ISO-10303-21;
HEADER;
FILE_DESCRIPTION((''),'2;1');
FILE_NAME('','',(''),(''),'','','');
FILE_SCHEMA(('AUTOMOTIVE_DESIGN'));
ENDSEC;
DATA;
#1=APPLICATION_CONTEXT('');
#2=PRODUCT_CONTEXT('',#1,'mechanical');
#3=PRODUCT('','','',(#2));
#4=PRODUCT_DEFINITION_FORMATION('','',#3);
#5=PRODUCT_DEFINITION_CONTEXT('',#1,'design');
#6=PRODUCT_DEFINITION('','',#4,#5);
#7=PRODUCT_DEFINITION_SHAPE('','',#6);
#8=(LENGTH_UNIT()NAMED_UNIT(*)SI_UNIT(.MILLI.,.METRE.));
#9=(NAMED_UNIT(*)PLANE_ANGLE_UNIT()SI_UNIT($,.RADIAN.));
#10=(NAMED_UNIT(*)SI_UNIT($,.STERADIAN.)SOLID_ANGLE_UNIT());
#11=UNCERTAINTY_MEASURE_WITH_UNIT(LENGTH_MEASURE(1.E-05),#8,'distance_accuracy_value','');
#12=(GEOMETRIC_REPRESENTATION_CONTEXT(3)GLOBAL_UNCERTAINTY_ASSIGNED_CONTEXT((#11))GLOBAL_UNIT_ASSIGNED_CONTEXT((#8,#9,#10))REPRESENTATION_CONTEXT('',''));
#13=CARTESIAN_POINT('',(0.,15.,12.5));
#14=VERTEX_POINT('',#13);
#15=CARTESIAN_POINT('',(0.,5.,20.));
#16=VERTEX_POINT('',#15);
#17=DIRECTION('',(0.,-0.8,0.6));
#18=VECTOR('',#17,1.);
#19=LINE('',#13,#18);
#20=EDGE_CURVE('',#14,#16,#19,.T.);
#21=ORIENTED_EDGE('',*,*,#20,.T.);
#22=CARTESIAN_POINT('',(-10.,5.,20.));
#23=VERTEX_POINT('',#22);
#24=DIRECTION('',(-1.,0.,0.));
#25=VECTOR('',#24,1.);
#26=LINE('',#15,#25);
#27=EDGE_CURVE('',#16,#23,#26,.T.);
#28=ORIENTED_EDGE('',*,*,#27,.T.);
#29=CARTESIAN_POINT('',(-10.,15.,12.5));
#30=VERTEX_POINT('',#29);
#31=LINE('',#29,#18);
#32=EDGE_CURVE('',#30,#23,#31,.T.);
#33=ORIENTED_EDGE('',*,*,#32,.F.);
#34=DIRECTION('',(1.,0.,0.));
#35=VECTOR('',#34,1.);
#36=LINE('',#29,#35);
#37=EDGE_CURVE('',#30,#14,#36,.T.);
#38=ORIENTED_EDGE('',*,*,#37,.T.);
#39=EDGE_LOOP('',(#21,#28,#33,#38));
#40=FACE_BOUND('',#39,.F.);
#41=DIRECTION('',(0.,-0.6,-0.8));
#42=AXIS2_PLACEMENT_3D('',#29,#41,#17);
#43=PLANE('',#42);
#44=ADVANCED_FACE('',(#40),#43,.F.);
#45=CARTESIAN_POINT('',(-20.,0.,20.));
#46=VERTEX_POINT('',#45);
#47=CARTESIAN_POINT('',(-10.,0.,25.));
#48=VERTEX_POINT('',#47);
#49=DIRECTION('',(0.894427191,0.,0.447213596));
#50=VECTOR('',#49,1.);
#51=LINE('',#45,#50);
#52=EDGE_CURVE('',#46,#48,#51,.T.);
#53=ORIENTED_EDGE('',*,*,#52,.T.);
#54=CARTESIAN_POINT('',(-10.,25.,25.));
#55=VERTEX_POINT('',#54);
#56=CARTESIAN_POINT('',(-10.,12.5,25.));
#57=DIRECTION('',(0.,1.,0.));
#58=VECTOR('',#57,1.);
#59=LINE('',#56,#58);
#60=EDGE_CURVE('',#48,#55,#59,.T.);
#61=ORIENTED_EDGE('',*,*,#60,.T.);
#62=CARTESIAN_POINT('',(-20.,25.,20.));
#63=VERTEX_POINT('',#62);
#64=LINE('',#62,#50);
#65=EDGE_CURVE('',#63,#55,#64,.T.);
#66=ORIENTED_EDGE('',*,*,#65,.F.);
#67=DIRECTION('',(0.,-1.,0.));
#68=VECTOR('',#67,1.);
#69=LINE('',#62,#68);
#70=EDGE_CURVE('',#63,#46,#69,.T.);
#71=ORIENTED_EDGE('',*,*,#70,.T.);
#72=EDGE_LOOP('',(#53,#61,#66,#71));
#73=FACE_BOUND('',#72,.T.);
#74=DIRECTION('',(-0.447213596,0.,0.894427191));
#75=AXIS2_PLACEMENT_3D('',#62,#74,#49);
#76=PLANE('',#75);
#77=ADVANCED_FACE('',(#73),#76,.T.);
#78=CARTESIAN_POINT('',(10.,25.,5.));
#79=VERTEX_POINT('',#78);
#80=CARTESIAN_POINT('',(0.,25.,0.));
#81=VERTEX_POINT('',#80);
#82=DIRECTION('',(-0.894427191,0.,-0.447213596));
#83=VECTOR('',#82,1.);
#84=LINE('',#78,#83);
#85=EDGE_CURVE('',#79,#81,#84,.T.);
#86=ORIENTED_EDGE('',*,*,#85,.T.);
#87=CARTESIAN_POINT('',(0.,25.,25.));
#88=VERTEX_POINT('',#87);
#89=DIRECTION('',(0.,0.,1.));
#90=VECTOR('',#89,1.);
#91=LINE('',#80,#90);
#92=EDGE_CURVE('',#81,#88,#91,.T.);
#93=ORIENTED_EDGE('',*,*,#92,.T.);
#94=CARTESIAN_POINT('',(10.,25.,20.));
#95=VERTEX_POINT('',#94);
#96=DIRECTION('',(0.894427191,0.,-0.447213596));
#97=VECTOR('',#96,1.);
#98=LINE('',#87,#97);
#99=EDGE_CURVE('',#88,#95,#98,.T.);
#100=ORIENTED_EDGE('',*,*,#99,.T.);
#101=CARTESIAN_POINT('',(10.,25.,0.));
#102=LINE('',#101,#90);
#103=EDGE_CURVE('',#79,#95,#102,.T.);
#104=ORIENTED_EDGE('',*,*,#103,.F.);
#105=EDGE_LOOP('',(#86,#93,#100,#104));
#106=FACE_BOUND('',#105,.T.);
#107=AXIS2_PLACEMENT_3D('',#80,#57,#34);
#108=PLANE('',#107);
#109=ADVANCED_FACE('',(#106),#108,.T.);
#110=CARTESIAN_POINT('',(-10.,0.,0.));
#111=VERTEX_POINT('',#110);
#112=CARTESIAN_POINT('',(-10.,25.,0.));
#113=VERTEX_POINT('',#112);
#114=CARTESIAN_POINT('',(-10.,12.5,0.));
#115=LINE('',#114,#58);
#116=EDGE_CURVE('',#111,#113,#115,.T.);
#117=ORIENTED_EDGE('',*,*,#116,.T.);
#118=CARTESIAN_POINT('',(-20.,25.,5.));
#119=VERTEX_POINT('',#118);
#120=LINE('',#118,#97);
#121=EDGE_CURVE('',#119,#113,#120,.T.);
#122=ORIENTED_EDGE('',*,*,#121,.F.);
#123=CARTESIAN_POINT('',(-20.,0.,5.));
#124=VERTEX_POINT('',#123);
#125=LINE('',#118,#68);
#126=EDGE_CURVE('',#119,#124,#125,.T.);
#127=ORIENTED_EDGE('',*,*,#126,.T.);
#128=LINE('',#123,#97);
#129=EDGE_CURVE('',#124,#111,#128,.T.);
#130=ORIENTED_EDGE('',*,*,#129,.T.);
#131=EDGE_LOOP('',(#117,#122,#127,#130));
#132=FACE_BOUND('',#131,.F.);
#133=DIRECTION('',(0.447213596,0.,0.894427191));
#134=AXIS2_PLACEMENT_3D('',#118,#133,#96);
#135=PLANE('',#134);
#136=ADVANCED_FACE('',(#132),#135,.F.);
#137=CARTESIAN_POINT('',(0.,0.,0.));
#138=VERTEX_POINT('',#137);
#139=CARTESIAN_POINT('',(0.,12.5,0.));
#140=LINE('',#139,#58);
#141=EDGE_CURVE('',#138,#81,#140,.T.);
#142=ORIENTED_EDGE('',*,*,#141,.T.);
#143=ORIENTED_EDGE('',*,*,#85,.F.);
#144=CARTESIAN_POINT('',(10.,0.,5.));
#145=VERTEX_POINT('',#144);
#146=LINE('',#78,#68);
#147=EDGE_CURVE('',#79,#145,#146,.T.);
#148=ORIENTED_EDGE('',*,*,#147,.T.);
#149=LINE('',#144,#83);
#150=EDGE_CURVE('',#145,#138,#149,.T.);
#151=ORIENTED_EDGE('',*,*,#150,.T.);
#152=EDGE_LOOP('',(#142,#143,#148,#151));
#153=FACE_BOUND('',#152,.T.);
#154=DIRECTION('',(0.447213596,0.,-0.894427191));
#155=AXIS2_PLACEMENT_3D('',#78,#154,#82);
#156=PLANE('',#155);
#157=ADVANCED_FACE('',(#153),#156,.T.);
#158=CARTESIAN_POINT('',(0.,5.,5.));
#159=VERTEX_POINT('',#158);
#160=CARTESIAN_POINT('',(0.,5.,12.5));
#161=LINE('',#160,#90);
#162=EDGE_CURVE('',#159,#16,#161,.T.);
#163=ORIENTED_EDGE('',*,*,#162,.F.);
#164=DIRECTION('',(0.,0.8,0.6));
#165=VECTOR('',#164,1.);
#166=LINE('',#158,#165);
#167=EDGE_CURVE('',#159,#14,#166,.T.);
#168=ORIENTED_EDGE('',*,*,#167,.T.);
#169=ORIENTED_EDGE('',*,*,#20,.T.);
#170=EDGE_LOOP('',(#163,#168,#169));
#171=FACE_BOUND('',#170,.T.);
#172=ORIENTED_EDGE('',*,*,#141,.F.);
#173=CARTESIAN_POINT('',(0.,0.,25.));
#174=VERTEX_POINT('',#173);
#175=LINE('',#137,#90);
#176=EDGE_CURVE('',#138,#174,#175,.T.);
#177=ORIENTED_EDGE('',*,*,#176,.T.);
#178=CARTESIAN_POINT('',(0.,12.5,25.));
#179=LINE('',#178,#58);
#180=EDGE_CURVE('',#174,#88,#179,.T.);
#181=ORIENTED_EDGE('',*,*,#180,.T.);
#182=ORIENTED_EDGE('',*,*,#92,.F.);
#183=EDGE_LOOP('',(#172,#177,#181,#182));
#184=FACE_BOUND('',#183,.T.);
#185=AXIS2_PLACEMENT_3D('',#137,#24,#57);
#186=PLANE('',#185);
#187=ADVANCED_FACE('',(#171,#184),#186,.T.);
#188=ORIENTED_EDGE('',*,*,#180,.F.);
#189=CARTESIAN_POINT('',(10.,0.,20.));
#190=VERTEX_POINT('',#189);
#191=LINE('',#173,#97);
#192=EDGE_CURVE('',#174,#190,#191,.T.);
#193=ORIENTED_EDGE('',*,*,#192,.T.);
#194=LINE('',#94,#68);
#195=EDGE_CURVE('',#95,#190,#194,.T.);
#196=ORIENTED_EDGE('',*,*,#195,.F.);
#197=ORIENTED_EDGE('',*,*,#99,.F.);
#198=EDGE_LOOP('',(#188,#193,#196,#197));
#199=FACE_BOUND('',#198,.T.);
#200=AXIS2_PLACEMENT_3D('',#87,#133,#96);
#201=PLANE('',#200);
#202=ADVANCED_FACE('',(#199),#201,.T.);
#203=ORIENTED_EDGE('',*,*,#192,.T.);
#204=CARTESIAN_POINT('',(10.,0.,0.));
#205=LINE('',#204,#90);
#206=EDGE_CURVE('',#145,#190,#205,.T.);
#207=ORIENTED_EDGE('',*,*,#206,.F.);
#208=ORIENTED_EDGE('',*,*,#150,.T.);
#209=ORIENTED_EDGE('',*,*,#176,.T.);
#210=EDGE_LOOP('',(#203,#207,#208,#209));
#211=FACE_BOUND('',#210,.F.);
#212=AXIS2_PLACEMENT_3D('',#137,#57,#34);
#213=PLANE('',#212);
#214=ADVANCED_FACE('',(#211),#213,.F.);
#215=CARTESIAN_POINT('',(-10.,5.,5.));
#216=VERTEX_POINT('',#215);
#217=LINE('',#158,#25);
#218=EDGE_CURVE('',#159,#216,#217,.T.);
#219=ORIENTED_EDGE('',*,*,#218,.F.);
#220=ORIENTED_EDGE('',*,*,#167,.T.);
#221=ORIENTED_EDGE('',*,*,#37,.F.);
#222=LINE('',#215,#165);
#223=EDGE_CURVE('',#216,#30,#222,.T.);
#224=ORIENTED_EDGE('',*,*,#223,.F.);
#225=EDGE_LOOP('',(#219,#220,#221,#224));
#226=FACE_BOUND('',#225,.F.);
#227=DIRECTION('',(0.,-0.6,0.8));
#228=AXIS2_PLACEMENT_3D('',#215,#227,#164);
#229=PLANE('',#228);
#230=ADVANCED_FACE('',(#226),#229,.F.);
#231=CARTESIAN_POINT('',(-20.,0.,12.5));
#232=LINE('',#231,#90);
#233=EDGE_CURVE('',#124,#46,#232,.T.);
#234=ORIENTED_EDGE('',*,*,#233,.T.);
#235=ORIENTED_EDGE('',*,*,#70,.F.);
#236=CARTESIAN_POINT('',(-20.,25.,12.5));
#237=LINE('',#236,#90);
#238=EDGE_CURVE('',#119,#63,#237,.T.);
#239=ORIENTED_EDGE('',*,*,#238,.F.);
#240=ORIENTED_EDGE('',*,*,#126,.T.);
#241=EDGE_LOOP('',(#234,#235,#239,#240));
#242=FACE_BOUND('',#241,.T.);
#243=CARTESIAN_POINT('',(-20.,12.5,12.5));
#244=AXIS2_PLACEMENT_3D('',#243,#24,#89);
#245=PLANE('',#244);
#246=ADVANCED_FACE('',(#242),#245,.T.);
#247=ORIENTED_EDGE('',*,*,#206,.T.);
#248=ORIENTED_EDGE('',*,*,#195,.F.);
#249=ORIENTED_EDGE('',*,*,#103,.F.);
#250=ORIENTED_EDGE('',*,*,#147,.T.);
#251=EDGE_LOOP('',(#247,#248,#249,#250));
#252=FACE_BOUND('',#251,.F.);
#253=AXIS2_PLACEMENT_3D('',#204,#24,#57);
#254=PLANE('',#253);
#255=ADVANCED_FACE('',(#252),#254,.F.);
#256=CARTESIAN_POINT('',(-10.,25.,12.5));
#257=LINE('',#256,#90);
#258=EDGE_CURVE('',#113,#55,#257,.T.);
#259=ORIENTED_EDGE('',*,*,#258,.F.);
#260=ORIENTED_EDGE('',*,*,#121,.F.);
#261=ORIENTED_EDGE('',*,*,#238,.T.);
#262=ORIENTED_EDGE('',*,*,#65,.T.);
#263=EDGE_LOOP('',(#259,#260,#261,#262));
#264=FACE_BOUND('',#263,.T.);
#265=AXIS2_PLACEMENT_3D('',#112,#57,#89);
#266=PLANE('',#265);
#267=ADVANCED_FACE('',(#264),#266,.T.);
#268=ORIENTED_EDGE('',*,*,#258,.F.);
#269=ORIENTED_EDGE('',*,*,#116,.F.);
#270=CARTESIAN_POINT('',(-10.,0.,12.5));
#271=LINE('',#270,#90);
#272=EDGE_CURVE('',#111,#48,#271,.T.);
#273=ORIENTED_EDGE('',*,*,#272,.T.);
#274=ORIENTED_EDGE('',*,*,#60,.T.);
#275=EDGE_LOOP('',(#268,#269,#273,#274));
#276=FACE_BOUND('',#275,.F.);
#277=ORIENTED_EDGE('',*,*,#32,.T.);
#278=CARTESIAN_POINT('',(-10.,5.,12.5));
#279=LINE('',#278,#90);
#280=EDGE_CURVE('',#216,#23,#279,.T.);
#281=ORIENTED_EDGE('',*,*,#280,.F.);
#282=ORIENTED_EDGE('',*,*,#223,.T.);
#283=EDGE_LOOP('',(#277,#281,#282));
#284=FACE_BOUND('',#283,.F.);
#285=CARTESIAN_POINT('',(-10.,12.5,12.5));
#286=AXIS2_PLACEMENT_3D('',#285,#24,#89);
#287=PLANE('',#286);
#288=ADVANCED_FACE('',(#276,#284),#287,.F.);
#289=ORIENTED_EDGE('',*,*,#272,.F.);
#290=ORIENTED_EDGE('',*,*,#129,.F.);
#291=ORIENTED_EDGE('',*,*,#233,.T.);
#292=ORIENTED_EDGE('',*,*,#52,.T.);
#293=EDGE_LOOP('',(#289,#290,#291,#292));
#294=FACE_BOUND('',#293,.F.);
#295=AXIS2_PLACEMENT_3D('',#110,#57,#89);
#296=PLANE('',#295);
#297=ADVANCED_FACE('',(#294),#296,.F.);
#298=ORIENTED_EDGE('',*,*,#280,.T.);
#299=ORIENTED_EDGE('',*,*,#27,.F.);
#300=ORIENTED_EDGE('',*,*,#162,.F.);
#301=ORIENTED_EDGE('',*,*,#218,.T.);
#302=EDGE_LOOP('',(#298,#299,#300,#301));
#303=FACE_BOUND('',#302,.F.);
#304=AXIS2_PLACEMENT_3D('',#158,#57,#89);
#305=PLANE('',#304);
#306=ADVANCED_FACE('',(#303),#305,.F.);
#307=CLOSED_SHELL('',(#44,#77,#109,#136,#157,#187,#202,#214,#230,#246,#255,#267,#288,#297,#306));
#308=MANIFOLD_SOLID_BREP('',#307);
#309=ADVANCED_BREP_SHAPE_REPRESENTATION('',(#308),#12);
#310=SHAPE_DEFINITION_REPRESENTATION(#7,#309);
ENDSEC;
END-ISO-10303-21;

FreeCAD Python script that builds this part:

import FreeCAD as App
import Part
import Sketcher


def add_polygon(sketch, points):
    """Adds a closed chain of lines whose ends are joined by coincident constraints."""
    first, n = sketch.GeometryCount, len(points)
    for a, b in zip(points, points[1:] + points[:1]):
        sketch.addGeometry(Part.LineSegment(App.Vector(*a, 0), App.Vector(*b, 0)), False)
    for i in range(n):
        sketch.addConstraint(Sketcher.Constraint("Coincident", first + i, 2, first + (i + 1) % n, 1))

doc = App.newDocument("Part")
body = doc.addObject("PartDesign::Body", "Body")

# Sketch on XY plane
sketch1 = body.newObject("Sketcher::SketchObject", "Sketch")
sketch1.AttachmentSupport = (doc.getObject("XY_Plane"), [""])
sketch1.MapMode = "FlatFace"
add_polygon(sketch1, [(0, 25), (0, 0), (10, 0), (10, 25)])  # lines 0-3
sketch1.addConstraint(Sketcher.Constraint("Vertical", 0))
sketch1.addConstraint(Sketcher.Constraint("Horizontal", 1))
sketch1.addConstraint(Sketcher.Constraint("Vertical", 2))
sketch1.addConstraint(Sketcher.Constraint("Horizontal", 3))
sketch1.addConstraint(Sketcher.Constraint("Coincident", 0, 2, -1, 1))
sketch1.addConstraint(Sketcher.Constraint("DistanceX", 1, 1, 1, 2, 10.0))
sketch1.addConstraint(Sketcher.Constraint("DistanceY", 0, 2, 0, 1, 25.0))
pad1 = body.newObject("PartDesign::Pad", "Pad")
pad1.Profile = sketch1
pad1.Length = 25

# Sketch on XZ plane
sketch2 = body.newObject("Sketcher::SketchObject", "Sketch001")
sketch2.AttachmentSupport = (doc.getObject("XZ_Plane"), [""])
sketch2.MapMode = "FlatFace"
sketch2.AttachmentOffset = App.Placement(App.Vector(0, 0, -25), App.Rotation())
add_polygon(sketch2, [(10, 0), (0, 0), (10, 5)])  # lines 0-2
add_polygon(sketch2, [(10, 20), (0, 25), (10, 25)])  # lines 3-5
sketch2.addConstraint(Sketcher.Constraint("Horizontal", 0))
sketch2.addConstraint(Sketcher.Constraint("Vertical", 2))
sketch2.addConstraint(Sketcher.Constraint("Horizontal", 4))
sketch2.addConstraint(Sketcher.Constraint("Vertical", 5))
sketch2.addConstraint(Sketcher.Constraint("Coincident", 0, 2, -1, 1))
sketch2.addConstraint(Sketcher.Constraint("PointOnObject", 3, 2, -2))
sketch2.addConstraint(Sketcher.Constraint("Vertical", 2, 2, 4, 2))
sketch2.addConstraint(Sketcher.Constraint("Equal", 2, 5))
sketch2.addConstraint(Sketcher.Constraint("DistanceX", 0, 2, 0, 1, 10.0))
sketch2.addConstraint(Sketcher.Constraint("DistanceY", 2, 2, 2, 1, 5.0))
sketch2.addConstraint(Sketcher.Constraint("DistanceY", -1, 1, 3, 2, 25.0))
pocket1 = body.newObject("PartDesign::Pocket", "Pocket")
pocket1.Profile = sketch2
pocket1.Length = 25
pocket1.Reversed = True

# Sketch on YZ plane
sketch3 = body.newObject("Sketcher::SketchObject", "Sketch002")
sketch3.AttachmentSupport = (doc.getObject("YZ_Plane"), [""])
sketch3.MapMode = "FlatFace"
add_polygon(sketch3, [(15, 5), (5, 5), (5, 20), (15, 20)])  # lines 0-3
sketch3.addConstraint(Sketcher.Constraint("Horizontal", 0))
sketch3.addConstraint(Sketcher.Constraint("Vertical", 1))
sketch3.addConstraint(Sketcher.Constraint("Horizontal", 2))
sketch3.addConstraint(Sketcher.Constraint("Vertical", 3))
sketch3.addConstraint(Sketcher.Constraint("DistanceX", 0, 2, 0, 1, 10.0))
sketch3.addConstraint(Sketcher.Constraint("DistanceY", 1, 1, 1, 2, 15.0))
sketch3.addConstraint(Sketcher.Constraint("DistanceX", -1, 1, 0, 2, 5.0))
sketch3.addConstraint(Sketcher.Constraint("DistanceY", -1, 1, 0, 2, 5.0))
pad2 = body.newObject("PartDesign::Pad", "Pad001")
pad2.Profile = sketch3
pad2.Length = 10
pad2.Reversed = True

# Sketch on YZ plane
sketch4 = body.newObject("Sketcher::SketchObject", "Sketch003")
sketch4.AttachmentSupport = (doc.getObject("YZ_Plane"), [""])
sketch4.MapMode = "FlatFace"
sketch4.AttachmentOffset = App.Placement(App.Vector(0, 0, -10), App.Rotation())
add_polygon(sketch4, [(15, 20), (15, 12.5), (5, 20)])  # lines 0-2
add_polygon(sketch4, [(15, 5), (5, 5), (15, 12.5)])  # lines 3-5
sketch4.addConstraint(Sketcher.Constraint("Vertical", 0))
sketch4.addConstraint(Sketcher.Constraint("Horizontal", 2))
sketch4.addConstraint(Sketcher.Constraint("Horizontal", 3))
sketch4.addConstraint(Sketcher.Constraint("Vertical", 5))
sketch4.addConstraint(Sketcher.Constraint("Coincident", 4, 2, 0, 2))
sketch4.addConstraint(Sketcher.Constraint("Vertical", 1, 2, 3, 2))
sketch4.addConstraint(Sketcher.Constraint("Equal", 0, 5))
sketch4.addConstraint(Sketcher.Constraint("DistanceX", 2, 1, 2, 2, 10.0))
sketch4.addConstraint(Sketcher.Constraint("DistanceY", 0, 2, 0, 1, 7.5))
sketch4.addConstraint(Sketcher.Constraint("DistanceX", -1, 1, 0, 2, 15.0))
sketch4.addConstraint(Sketcher.Constraint("DistanceY", -1, 1, 1, 2, 20.0))
pocket2 = body.newObject("PartDesign::Pocket", "Pocket001")
pocket2.Profile = sketch4
pocket2.Length = 10
pocket2.Reversed = True

# Sketch on YZ plane
sketch5 = body.newObject("Sketcher::SketchObject", "Sketch004")
sketch5.AttachmentSupport = (doc.getObject("YZ_Plane"), [""])
sketch5.MapMode = "FlatFace"
sketch5.AttachmentOffset = App.Placement(App.Vector(0, 0, -10), App.Rotation())
add_polygon(sketch5, [(25, 0), (0, 0), (0, 25), (25, 25)])  # lines 0-3
sketch5.addConstraint(Sketcher.Constraint("Horizontal", 0))
sketch5.addConstraint(Sketcher.Constraint("Vertical", 1))
sketch5.addConstraint(Sketcher.Constraint("Horizontal", 2))
sketch5.addConstraint(Sketcher.Constraint("Vertical", 3))
sketch5.addConstraint(Sketcher.Constraint("Coincident", 0, 2, -1, 1))
sketch5.addConstraint(Sketcher.Constraint("Equal", 2, 1))
sketch5.addConstraint(Sketcher.Constraint("DistanceX", 0, 2, 0, 1, 25.0))
pad3 = body.newObject("PartDesign::Pad", "Pad002")
pad3.Profile = sketch5
pad3.Length = 10
pad3.Reversed = True

# Sketch on XZ plane
sketch6 = body.newObject("Sketcher::SketchObject", "Sketch005")
sketch6.AttachmentSupport = (doc.getObject("XZ_Plane"), [""])
sketch6.MapMode = "FlatFace"
sketch6.AttachmentOffset = App.Placement(App.Vector(0, 0, -25), App.Rotation())
add_polygon(sketch6, [(-10, 0), (-20, 0), (-20, 5)])  # lines 0-2
add_polygon(sketch6, [(-20, 20), (-20, 25), (-10, 25)])  # lines 3-5
sketch6.addConstraint(Sketcher.Constraint("Horizontal", 0))
sketch6.addConstraint(Sketcher.Constraint("Vertical", 1))
sketch6.addConstraint(Sketcher.Constraint("Vertical", 3))
sketch6.addConstraint(Sketcher.Constraint("Horizontal", 4))
sketch6.addConstraint(Sketcher.Constraint("PointOnObject", 0, 2, -1))
sketch6.addConstraint(Sketcher.Constraint("Vertical", 1, 2, 3, 2))
sketch6.addConstraint(Sketcher.Constraint("Vertical", 2, 2, 4, 2))
sketch6.addConstraint(Sketcher.Constraint("Equal", 1, 3))
sketch6.addConstraint(Sketcher.Constraint("DistanceX", 0, 2, 0, 1, 10.0))
sketch6.addConstraint(Sketcher.Constraint("DistanceY", 1, 1, 1, 2, 5.0))
sketch6.addConstraint(Sketcher.Constraint("DistanceX", 0, 2, -1, 1, 20.0))
sketch6.addConstraint(Sketcher.Constraint("DistanceY", -1, 1, 3, 2, 25.0))
pocket3 = body.newObject("PartDesign::Pocket", "Pocket002")
pocket3.Profile = sketch6
pocket3.Length = 25
pocket3.Reversed = True

doc.recompute()
